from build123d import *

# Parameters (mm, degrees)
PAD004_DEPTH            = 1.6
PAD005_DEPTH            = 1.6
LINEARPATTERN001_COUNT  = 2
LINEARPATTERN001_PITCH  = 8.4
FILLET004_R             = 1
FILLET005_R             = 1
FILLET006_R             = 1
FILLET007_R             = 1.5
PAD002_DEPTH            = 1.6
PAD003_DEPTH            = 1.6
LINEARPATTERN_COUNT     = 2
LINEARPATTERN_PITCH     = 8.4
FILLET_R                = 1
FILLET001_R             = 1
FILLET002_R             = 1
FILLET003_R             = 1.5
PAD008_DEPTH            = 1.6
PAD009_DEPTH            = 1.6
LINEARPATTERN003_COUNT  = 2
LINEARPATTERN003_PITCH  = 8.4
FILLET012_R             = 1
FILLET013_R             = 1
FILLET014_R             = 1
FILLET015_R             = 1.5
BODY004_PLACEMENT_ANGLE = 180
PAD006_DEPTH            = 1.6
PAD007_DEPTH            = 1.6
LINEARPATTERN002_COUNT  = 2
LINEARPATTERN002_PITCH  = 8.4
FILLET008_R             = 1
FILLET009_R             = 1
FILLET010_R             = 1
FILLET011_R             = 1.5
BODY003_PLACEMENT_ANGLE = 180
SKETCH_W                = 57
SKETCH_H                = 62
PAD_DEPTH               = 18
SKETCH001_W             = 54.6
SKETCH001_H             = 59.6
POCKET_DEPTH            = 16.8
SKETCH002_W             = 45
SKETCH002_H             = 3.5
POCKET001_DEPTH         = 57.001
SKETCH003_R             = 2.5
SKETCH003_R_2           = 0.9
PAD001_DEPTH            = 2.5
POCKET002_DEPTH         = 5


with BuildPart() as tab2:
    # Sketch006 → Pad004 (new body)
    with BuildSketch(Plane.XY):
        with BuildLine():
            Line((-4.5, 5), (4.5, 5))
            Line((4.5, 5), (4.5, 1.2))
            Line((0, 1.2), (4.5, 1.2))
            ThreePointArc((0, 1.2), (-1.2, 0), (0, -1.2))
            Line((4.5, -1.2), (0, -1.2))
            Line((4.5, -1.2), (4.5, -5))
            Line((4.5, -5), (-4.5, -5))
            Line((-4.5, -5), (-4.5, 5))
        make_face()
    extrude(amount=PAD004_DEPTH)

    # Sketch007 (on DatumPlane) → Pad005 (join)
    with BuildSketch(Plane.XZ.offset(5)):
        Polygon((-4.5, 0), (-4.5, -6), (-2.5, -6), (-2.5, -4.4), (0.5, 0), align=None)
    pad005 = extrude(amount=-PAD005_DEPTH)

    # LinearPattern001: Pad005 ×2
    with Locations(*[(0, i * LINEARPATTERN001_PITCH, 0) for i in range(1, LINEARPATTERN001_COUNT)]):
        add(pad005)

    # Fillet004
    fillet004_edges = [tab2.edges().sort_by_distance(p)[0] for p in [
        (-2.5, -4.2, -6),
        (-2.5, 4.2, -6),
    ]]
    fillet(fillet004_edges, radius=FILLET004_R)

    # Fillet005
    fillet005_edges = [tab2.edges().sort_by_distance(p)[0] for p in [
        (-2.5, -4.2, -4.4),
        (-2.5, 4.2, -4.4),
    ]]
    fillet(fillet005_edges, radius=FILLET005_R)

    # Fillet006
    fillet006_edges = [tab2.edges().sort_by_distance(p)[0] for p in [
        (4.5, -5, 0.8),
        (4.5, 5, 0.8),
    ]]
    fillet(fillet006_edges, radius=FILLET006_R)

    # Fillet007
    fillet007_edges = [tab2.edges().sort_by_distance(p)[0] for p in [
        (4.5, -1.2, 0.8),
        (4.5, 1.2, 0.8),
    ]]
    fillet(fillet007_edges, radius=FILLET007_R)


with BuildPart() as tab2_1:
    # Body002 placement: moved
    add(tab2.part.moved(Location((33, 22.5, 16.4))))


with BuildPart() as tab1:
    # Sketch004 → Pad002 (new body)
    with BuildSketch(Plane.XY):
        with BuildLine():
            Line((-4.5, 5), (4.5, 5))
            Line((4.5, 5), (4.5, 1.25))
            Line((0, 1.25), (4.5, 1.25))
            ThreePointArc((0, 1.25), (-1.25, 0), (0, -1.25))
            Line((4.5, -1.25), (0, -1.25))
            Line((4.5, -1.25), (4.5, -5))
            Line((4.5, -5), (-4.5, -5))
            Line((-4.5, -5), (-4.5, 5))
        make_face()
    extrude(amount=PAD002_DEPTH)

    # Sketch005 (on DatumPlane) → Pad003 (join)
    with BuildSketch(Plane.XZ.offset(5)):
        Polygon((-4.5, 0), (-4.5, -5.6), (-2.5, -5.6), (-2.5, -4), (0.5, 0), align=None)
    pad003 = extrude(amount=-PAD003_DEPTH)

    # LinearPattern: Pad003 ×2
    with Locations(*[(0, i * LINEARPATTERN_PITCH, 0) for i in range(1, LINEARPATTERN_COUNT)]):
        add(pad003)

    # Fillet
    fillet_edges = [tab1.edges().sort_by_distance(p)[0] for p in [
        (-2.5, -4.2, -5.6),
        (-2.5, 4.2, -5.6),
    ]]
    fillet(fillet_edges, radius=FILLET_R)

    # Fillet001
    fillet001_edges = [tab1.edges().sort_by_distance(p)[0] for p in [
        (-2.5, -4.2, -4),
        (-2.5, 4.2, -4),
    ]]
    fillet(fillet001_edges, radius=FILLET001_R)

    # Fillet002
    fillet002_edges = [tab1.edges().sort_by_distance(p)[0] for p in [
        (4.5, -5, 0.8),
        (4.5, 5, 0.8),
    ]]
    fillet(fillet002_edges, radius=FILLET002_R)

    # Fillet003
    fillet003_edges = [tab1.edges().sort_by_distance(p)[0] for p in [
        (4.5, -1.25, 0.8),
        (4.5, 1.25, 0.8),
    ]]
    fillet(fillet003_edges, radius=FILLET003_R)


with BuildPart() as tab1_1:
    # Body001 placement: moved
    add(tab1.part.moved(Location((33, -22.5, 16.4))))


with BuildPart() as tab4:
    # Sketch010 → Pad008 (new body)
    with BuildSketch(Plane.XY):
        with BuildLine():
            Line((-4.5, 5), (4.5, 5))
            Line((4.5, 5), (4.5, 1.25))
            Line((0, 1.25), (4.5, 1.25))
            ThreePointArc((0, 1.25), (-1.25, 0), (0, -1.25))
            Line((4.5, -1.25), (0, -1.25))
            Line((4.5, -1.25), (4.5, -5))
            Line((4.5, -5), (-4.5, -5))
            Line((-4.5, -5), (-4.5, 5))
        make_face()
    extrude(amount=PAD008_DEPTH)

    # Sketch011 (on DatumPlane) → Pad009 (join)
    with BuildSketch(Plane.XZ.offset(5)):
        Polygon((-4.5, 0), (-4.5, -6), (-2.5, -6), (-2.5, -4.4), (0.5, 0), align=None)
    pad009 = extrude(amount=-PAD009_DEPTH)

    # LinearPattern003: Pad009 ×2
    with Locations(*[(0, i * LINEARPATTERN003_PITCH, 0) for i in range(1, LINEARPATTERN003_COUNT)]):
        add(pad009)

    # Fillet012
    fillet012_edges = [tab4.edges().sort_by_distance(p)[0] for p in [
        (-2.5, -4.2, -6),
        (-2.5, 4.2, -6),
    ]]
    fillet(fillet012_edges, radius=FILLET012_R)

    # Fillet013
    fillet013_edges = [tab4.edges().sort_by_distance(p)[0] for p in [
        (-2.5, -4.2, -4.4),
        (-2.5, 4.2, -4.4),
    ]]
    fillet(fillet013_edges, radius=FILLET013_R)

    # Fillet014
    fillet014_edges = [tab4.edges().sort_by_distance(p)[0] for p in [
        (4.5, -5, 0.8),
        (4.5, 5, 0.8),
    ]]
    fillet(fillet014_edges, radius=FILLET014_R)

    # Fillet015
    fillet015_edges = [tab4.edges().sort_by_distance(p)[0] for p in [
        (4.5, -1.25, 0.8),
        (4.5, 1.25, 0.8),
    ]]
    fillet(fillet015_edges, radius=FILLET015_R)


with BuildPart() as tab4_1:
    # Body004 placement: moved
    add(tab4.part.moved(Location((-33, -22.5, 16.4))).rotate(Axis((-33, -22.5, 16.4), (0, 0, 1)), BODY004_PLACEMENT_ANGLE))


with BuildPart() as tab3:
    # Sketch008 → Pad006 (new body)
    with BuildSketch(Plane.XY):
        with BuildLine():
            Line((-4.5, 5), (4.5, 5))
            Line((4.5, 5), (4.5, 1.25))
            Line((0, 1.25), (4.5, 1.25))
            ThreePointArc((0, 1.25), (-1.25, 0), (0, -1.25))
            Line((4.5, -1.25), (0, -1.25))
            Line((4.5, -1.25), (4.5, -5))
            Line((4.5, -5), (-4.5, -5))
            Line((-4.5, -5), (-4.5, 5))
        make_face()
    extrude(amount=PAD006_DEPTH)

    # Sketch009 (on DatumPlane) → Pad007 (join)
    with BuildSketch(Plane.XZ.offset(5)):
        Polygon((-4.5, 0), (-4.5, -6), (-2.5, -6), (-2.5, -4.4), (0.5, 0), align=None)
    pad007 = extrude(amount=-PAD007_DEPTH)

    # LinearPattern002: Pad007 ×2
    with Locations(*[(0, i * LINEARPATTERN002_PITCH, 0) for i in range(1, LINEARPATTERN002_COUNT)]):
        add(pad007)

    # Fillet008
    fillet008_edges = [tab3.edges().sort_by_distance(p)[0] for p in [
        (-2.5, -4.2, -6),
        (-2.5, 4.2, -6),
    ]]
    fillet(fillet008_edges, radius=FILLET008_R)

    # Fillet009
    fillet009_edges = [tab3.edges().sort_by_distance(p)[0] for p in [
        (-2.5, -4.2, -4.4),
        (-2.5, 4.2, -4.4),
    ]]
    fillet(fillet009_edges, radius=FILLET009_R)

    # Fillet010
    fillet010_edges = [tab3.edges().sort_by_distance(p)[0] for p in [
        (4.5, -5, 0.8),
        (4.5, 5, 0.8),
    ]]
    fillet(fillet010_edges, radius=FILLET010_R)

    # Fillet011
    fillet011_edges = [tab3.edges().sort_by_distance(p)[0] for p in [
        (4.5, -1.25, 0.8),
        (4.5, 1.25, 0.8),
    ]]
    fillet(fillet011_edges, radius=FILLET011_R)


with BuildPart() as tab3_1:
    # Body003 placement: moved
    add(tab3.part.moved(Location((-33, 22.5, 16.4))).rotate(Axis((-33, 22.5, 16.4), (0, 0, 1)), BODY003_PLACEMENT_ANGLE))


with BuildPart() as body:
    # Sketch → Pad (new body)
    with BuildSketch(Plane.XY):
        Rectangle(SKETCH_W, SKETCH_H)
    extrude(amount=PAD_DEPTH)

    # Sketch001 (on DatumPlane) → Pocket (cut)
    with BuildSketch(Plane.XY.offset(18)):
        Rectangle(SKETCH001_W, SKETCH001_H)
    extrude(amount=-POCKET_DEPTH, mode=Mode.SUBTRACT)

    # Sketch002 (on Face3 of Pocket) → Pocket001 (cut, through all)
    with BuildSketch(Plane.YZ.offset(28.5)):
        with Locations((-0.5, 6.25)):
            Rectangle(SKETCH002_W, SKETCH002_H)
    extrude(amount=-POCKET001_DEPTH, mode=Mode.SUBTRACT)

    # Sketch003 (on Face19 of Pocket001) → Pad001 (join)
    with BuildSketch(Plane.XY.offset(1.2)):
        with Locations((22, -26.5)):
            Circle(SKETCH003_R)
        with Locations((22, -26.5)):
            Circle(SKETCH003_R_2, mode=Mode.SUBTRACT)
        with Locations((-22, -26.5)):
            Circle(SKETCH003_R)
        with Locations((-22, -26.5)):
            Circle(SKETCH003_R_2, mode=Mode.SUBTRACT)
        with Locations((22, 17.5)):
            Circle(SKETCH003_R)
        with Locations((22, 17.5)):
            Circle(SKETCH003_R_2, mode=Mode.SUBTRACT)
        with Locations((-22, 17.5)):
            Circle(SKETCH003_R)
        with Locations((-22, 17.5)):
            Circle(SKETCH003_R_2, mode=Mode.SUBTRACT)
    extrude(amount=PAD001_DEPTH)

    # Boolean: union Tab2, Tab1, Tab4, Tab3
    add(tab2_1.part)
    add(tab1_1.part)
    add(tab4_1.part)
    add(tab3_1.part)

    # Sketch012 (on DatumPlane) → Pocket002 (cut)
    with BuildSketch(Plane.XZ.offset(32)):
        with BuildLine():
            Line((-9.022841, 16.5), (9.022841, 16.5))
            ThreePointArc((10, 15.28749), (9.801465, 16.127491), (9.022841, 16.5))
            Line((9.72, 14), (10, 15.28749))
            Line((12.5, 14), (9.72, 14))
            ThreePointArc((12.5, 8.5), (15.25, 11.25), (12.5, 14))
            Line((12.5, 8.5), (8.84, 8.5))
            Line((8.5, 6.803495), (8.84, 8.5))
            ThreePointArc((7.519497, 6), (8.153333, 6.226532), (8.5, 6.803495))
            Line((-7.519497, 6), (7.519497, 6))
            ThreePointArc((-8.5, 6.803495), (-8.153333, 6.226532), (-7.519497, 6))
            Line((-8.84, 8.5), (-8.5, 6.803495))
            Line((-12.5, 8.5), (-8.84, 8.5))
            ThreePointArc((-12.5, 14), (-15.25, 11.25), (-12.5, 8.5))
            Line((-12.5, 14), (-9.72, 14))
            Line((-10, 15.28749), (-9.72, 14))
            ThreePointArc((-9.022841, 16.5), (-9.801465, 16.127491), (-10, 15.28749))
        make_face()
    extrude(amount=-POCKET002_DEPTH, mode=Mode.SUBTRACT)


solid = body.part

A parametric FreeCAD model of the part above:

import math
import FreeCAD as App
import Part
import Sketcher
from FreeCAD import Vector
Q = App.Units.Quantity


def edges_at(feature, points):
    """Names of the edges that pass closest to the given points."""
    edges = feature.Shape.Edges
    near = lambda p: min(range(len(edges)), key=lambda i: edges[i].distToShape(Part.Vertex(*p))[0])
    return sorted({f"Edge{near(p) + 1}" for p in points})

doc = App.newDocument("Part")
params = doc.addObject("Spreadsheet::Sheet", "Params")
for row, (alias, value) in enumerate([
    ("sketch1_radius", "1.2 mm"),
    ("sketch1_width", "9 mm"),
    ("sketch1_height", "10 mm"),
    ("pad1_length", "1.6 mm"),
    ("sketch2_width", "2 mm"),
    ("sketch2_width2", "5 mm"),
    ("sketch2_height", "6 mm"),
    ("sketch2_height2", "1.6 mm"),
    ("pad2_length", "1.6 mm"),
    ("linearpattern_pitch", "8.4 mm"),
    ("fillet_radius", "1 mm"),
    ("fillet2_radius", "1 mm"),
    ("fillet3_radius", "1 mm"),
    ("fillet4_radius", "1.5 mm"),
    ("sketch3_width", "9 mm"),
    ("sketch3_height", "10 mm"),
    ("sketch3_radius", "1.25 mm"),
    ("pad3_length", "1.6 mm"),
    ("sketch4_width", "2 mm"),
    ("sketch4_width2", "5 mm"),
    ("sketch4_length", "5 mm"),
    ("sketch4_height", "5.6 mm"),
    ("pad4_length", "1.6 mm"),
    ("linearpattern2_pitch", "8.4 mm"),
    ("fillet5_radius", "1 mm"),
    ("fillet6_radius", "1 mm"),
    ("fillet7_radius", "1 mm"),
    ("fillet8_radius", "1.5 mm"),
    ("sketch5_width", "9 mm"),
    ("sketch5_height", "10 mm"),
    ("sketch5_radius", "1.25 mm"),
    ("pad5_length", "1.6 mm"),
    ("sketch6_width", "2 mm"),
    ("sketch6_width2", "5 mm"),
    ("sketch6_height", "6 mm"),
    ("sketch6_height2", "1.6 mm"),
    ("pad6_length", "1.6 mm"),
    ("linearpattern3_pitch", "8.4 mm"),
    ("fillet9_radius", "1 mm"),
    ("fillet10_radius", "1 mm"),
    ("fillet11_radius", "1 mm"),
    ("fillet12_radius", "1.5 mm"),
    ("sketch7_width", "9 mm"),
    ("sketch7_height", "10 mm"),
    ("sketch7_radius", "1.25 mm"),
    ("pad7_length", "1.6 mm"),
    ("sketch8_width", "2 mm"),
    ("sketch8_width2", "5 mm"),
    ("sketch8_height", "6 mm"),
    ("sketch8_height2", "1.6 mm"),
    ("pad8_length", "1.6 mm"),
    ("linearpattern4_pitch", "8.4 mm"),
    ("fillet13_radius", "1 mm"),
    ("fillet14_radius", "1 mm"),
    ("fillet15_radius", "1 mm"),
    ("fillet16_radius", "1.5 mm"),
    ("sketch9_width", "57 mm"),
    ("sketch9_height", "62 mm"),
    ("pad9_length", "18 mm"),
    ("sketch10_width", "54.6 mm"),
    ("sketch10_height", "59.6 mm"),
    ("pocket1_length", "16.8 mm"),
    ("sketch11_width", "45 mm"),
    ("sketch11_height", "3.5 mm"),
    ("sketch12_diameter", "5 mm"),
    ("sketch12_diameter2", "1.8 mm"),
    ("pad10_length", "2.5 mm"),
    ("sketch13_radius", "1 mm"),
    ("sketch13_radius2", "2.75 mm"),
    ("sketch13_width", "2.78 mm"),
    ("sketch13_width2", "3.66 mm"),
    ("pocket3_length", "5 mm"),
], start=1):
    params.set(f"A{row}", alias)
    params.set(f"B{row}", "=" + value)
    params.setAlias(f"B{row}", alias)

body = doc.addObject("PartDesign::Body", "Body")

# Sketch on XY plane
sketch1 = doc.addObject("Sketcher::SketchObject", "Sketch")
body.addObject(sketch1)
sketch1.AttachmentSupport = (doc.XY_Plane, [""])
sketch1.MapMode = "FlatFace"
sketch1.addGeometry(Part.LineSegment(Vector(4.5, 5, 0), Vector(-4.5, 5, 0)), False)
sketch1.addGeometry(Part.LineSegment(Vector(-4.5, 5, 0), Vector(-4.5, -5, 0)), False)
sketch1.addGeometry(Part.LineSegment(Vector(-4.5, -5, 0), Vector(4.5, -5, 0)), False)
sketch1.addGeometry(Part.LineSegment(Vector(4.5, -5, 0), Vector(4.5, -1.2, 0)), False)
sketch1.addGeometry(Part.LineSegment(Vector(4.5, -1.2, 0), Vector(0, -1.2, 0)), False)
sketch1.addGeometry(Part.ArcOfCircle(Part.Circle(Vector(0, 0, 0), Vector(0, 0, 1), 1.2), math.radians(90), math.radians(270)), False)
sketch1.addGeometry(Part.LineSegment(Vector(0, 1.2, 0), Vector(4.5, 1.2, 0)), False)
sketch1.addGeometry(Part.LineSegment(Vector(4.5, 1.2, 0), Vector(4.5, 5, 0)), False)
sketch1.addConstraint(Sketcher.Constraint("Coincident", 0, 2, 1, 1))
sketch1.addConstraint(Sketcher.Constraint("Coincident", 1, 2, 2, 1))
sketch1.addConstraint(Sketcher.Constraint("Coincident", 2, 2, 3, 1))
sketch1.addConstraint(Sketcher.Constraint("Coincident", 3, 2, 4, 1))
sketch1.addConstraint(Sketcher.Constraint("Tangent", 4, 2, 5, 2))
sketch1.addConstraint(Sketcher.Constraint("Tangent", 5, 1, 6, 1))
sketch1.addConstraint(Sketcher.Constraint("Coincident", 6, 2, 7, 1))
sketch1.addConstraint(Sketcher.Constraint("Coincident", 7, 2, 0, 1))
sketch1.addConstraint(Sketcher.Constraint("Horizontal", 0))
sketch1.addConstraint(Sketcher.Constraint("Vertical", 1))
sketch1.addConstraint(Sketcher.Constraint("Horizontal", 2))
sketch1.addConstraint(Sketcher.Constraint("Vertical", 3))
sketch1.addConstraint(Sketcher.Constraint("Horizontal", 4))
sketch1.addConstraint(Sketcher.Constraint("Horizontal", 6))
sketch1.addConstraint(Sketcher.Constraint("Vertical", 7))
sketch1.addConstraint(Sketcher.Constraint("Coincident", 5, 3, -1, 1))
sketch1.addConstraint(Sketcher.Constraint("Symmetric", 0, 2, 2, 2, -1, 1))
sketch1.addConstraint(Sketcher.Constraint("Vertical", 3, 2, 6, 2))
sketch1.addConstraint(Sketcher.Constraint("Radius", 5, Q("1.2 mm")))
sketch1.addConstraint(Sketcher.Constraint("DistanceX", 0, 2, 0, 1, Q("9 mm")))
sketch1.addConstraint(Sketcher.Constraint("DistanceY", 1, 2, 1, 1, Q("10 mm")))
sketch1.setExpression("Constraints[18]", "Params.sketch1_radius")
sketch1.setExpression("Constraints[19]", "Params.sketch1_width")
sketch1.setExpression("Constraints[20]", "Params.sketch1_height")
pad1 = doc.addObject("PartDesign::Pad", "Pad")
body.addObject(pad1)
pad1.Profile = sketch1
pad1.setExpression("Length", "Params.pad1_length")

# Sketch on XZ plane
sketch2 = doc.addObject("Sketcher::SketchObject", "Sketch001")
body.addObject(sketch2)
sketch2.AttachmentSupport = (doc.XZ_Plane, [""])
sketch2.MapMode = "FlatFace"
sketch2.AttachmentOffset = App.Placement(Vector(0, 0, 5), App.Rotation())
sketch2.addGeometry(Part.LineSegment(Vector(-4.5, 0, 0), Vector(-4.5, -6, 0)), False)
sketch2.addGeometry(Part.LineSegment(Vector(-4.5, -6, 0), Vector(-2.5, -6, 0)), False)
sketch2.addGeometry(Part.LineSegment(Vector(-2.5, -6, 0), Vector(-2.5, -4.4, 0)), False)
sketch2.addGeometry(Part.LineSegment(Vector(-2.5, -4.4, 0), Vector(0.5, 0, 0)), False)
sketch2.addGeometry(Part.LineSegment(Vector(0.5, 0, 0), Vector(-4.5, 0, 0)), False)
sketch2.addConstraint(Sketcher.Constraint("Coincident", 0, 2, 1, 1))
sketch2.addConstraint(Sketcher.Constraint("Coincident", 1, 2, 2, 1))
sketch2.addConstraint(Sketcher.Constraint("Coincident", 2, 2, 3, 1))
sketch2.addConstraint(Sketcher.Constraint("Coincident", 3, 2, 4, 1))
sketch2.addConstraint(Sketcher.Constraint("Coincident", 4, 2, 0, 1))
sketch2.addConstraint(Sketcher.Constraint("Vertical", 0))
sketch2.addConstraint(Sketcher.Constraint("Horizontal", 1))
sketch2.addConstraint(Sketcher.Constraint("Vertical", 2))
sketch2.addConstraint(Sketcher.Constraint("Horizontal", 4))
sketch2.addConstraint(Sketcher.Constraint("PointOnObject", 3, 2, -1))
sketch2.addConstraint(Sketcher.Constraint("DistanceX", 1, 1, 1, 2, Q("2 mm")))
sketch2.addConstraint(Sketcher.Constraint("DistanceX", 4, 2, 4, 1, Q("5 mm")))
sketch2.addConstraint(Sketcher.Constraint("DistanceY", 0, 2, 0, 1, Q("6 mm")))
sketch2.addConstraint(Sketcher.Constraint("DistanceY", 2, 1, 2, 2, Q("1.6 mm")))
sketch2.addConstraint(Sketcher.Constraint("DistanceX", 0, 2, -1, 1, Q("4.5 mm")))
sketch2.setExpression("Constraints[10]", "Params.sketch2_width")
sketch2.setExpression("Constraints[11]", "Params.sketch2_width2")
sketch2.setExpression("Constraints[12]", "Params.sketch2_height")
sketch2.setExpression("Constraints[13]", "Params.sketch2_height2")
pad2 = doc.addObject("PartDesign::Pad", "Pad001")
body.addObject(pad2)
pad2.Profile = sketch2
pad2.setExpression("Length", "Params.pad2_length")
pad2.Reversed = True
doc.recompute()

linearpattern = doc.addObject("PartDesign::LinearPattern", "LinearPattern")
body.addObject(linearpattern)
linearpattern.Originals = [pad2]
linearpattern.Direction = (doc.Y_Axis, [""])
linearpattern.Mode = "offset"
linearpattern.setExpression("Offset", "Params.linearpattern_pitch")
linearpattern.Occurrences = 2
body.Tip = linearpattern
doc.recompute()

fillet = doc.addObject("PartDesign::Fillet", "Fillet")
body.addObject(fillet)
fillet.Base = (linearpattern, edges_at(linearpattern, [(-2.5, -4.2, -6), (-2.5, 4.2, -6)]))
fillet.setExpression("Radius", "Params.fillet_radius")
doc.recompute()

fillet2 = doc.addObject("PartDesign::Fillet", "Fillet001")
body.addObject(fillet2)
fillet2.Base = (fillet, edges_at(fillet, [(-2.5, -4.2, -4.4), (-2.5, 4.2, -4.4)]))
fillet2.setExpression("Radius", "Params.fillet2_radius")
doc.recompute()

fillet3 = doc.addObject("PartDesign::Fillet", "Fillet002")
body.addObject(fillet3)
fillet3.Base = (fillet2, edges_at(fillet2, [(4.5, -5, 0.8), (4.5, 5, 0.8)]))
fillet3.setExpression("Radius", "Params.fillet3_radius")
doc.recompute()

fillet4 = doc.addObject("PartDesign::Fillet", "Fillet003")
body.addObject(fillet4)
fillet4.Base = (fillet3, edges_at(fillet3, [(4.5, -1.2, 0.8), (4.5, 1.2, 0.8)]))
fillet4.setExpression("Radius", "Params.fillet4_radius")
body2 = doc.addObject("PartDesign::Body", "Body001")
doc.recompute()

body.Placement = App.Placement(Vector(33, 22.5, 16.4), App.Rotation(Vector(0, 0, 1), 0))
boolean = doc.addObject("PartDesign::Boolean", "Boolean")
body2.addObject(boolean)
boolean.Type = "Fuse"
boolean.addObjects([body])
body3 = doc.addObject("PartDesign::Body", "Body002")

# Sketch on XY plane
sketch3 = doc.addObject("Sketcher::SketchObject", "Sketch002")
body3.addObject(sketch3)
sketch3.AttachmentSupport = (doc.getObject("XY_Plane002"), [""])
sketch3.MapMode = "FlatFace"
sketch3.addGeometry(Part.LineSegment(Vector(4.5, 5, 0), Vector(-4.5, 5, 0)), False)
sketch3.addGeometry(Part.LineSegment(Vector(-4.5, 5, 0), Vector(-4.5, -5, 0)), False)
sketch3.addGeometry(Part.LineSegment(Vector(-4.5, -5, 0), Vector(4.5, -5, 0)), False)
sketch3.addGeometry(Part.LineSegment(Vector(4.5, -5, 0), Vector(4.5, -1.2, 0)), False)
sketch3.addGeometry(Part.LineSegment(Vector(4.5, -1.2, 0), Vector(0, -1.2, 0)), False)
sketch3.addGeometry(Part.ArcOfCircle(Part.Circle(Vector(0, 0, 0), Vector(0, 0, 1), 1.2), math.radians(90), math.radians(270)), False)
sketch3.addGeometry(Part.LineSegment(Vector(0, 1.2, 0), Vector(4.5, 1.2, 0)), False)
sketch3.addGeometry(Part.LineSegment(Vector(4.5, 1.2, 0), Vector(4.5, 5, 0)), False)
sketch3.addConstraint(Sketcher.Constraint("Coincident", 0, 2, 1, 1))
sketch3.addConstraint(Sketcher.Constraint("Coincident", 1, 2, 2, 1))
sketch3.addConstraint(Sketcher.Constraint("Coincident", 2, 2, 3, 1))
sketch3.addConstraint(Sketcher.Constraint("Coincident", 3, 2, 4, 1))
sketch3.addConstraint(Sketcher.Constraint("Tangent", 4, 2, 5, 2))
sketch3.addConstraint(Sketcher.Constraint("Tangent", 5, 1, 6, 1))
sketch3.addConstraint(Sketcher.Constraint("Coincident", 6, 2, 7, 1))
sketch3.addConstraint(Sketcher.Constraint("Coincident", 7, 2, 0, 1))
sketch3.addConstraint(Sketcher.Constraint("Horizontal", 0))
sketch3.addConstraint(Sketcher.Constraint("Vertical", 1))
sketch3.addConstraint(Sketcher.Constraint("Horizontal", 2))
sketch3.addConstraint(Sketcher.Constraint("Vertical", 3))
sketch3.addConstraint(Sketcher.Constraint("Horizontal", 4))
sketch3.addConstraint(Sketcher.Constraint("Horizontal", 6))
sketch3.addConstraint(Sketcher.Constraint("Vertical", 7))
sketch3.addConstraint(Sketcher.Constraint("Coincident", 5, 3, -1, 1))
sketch3.addConstraint(Sketcher.Constraint("Symmetric", 0, 2, 2, 2, -1, 1))
sketch3.addConstraint(Sketcher.Constraint("Vertical", 3, 2, 6, 2))
sketch3.addConstraint(Sketcher.Constraint("DistanceX", 0, 2, 0, 1, Q("9 mm")))
sketch3.addConstraint(Sketcher.Constraint("DistanceY", 1, 2, 1, 1, Q("10 mm")))
sketch3.addConstraint(Sketcher.Constraint("Radius", 5, Q("1.25 mm")))
sketch3.setExpression("Constraints[18]", "Params.sketch3_width")
sketch3.setExpression("Constraints[19]", "Params.sketch3_height")
sketch3.setExpression("Constraints[20]", "Params.sketch3_radius")
pad3 = doc.addObject("PartDesign::Pad", "Pad002")
body3.addObject(pad3)
pad3.Profile = sketch3
pad3.setExpression("Length", "Params.pad3_length")

# Sketch on XZ plane
sketch4 = doc.addObject("Sketcher::SketchObject", "Sketch003")
body3.addObject(sketch4)
sketch4.AttachmentSupport = (doc.getObject("XZ_Plane002"), [""])
sketch4.MapMode = "FlatFace"
sketch4.AttachmentOffset = App.Placement(Vector(0, 0, 5), App.Rotation())
sketch4.addGeometry(Part.LineSegment(Vector(-4.5, 0, 0), Vector(-4.5, -5.6, 0)), False)
sketch4.addGeometry(Part.LineSegment(Vector(-4.5, -5.6, 0), Vector(-2.5, -5.6, 0)), False)
sketch4.addGeometry(Part.LineSegment(Vector(-2.5, -5.6, 0), Vector(-2.5, -4, 0)), False)
sketch4.addGeometry(Part.LineSegment(Vector(-2.5, -4, 0), Vector(0.5, 0, 0)), False)
sketch4.addGeometry(Part.LineSegment(Vector(0.5, 0, 0), Vector(-4.5, 0, 0)), False)
sketch4.addConstraint(Sketcher.Constraint("Coincident", 0, 2, 1, 1))
sketch4.addConstraint(Sketcher.Constraint("Coincident", 1, 2, 2, 1))
sketch4.addConstraint(Sketcher.Constraint("Coincident", 2, 2, 3, 1))
sketch4.addConstraint(Sketcher.Constraint("Coincident", 3, 2, 4, 1))
sketch4.addConstraint(Sketcher.Constraint("Coincident", 4, 2, 0, 1))
sketch4.addConstraint(Sketcher.Constraint("Vertical", 0))
sketch4.addConstraint(Sketcher.Constraint("Horizontal", 1))
sketch4.addConstraint(Sketcher.Constraint("Vertical", 2))
sketch4.addConstraint(Sketcher.Constraint("Horizontal", 4))
sketch4.addConstraint(Sketcher.Constraint("PointOnObject", 3, 2, -1))
sketch4.addConstraint(Sketcher.Constraint("DistanceX", 1, 1, 1, 2, Q("2 mm")))
sketch4.addConstraint(Sketcher.Constraint("DistanceX", 4, 2, 4, 1, Q("5 mm")))
sketch4.addConstraint(Sketcher.Constraint("Distance", 3, Q("5 mm")))
sketch4.addConstraint(Sketcher.Constraint("DistanceY", 0, 2, 0, 1, Q("5.6 mm")))
sketch4.addConstraint(Sketcher.Constraint("DistanceX", 0, 2, -1, 1, Q("4.5 mm")))
sketch4.setExpression("Constraints[10]", "Params.sketch4_width")
sketch4.setExpression("Constraints[11]", "Params.sketch4_width2")
sketch4.setExpression("Constraints[12]", "Params.sketch4_length")
sketch4.setExpression("Constraints[13]", "Params.sketch4_height")
pad4 = doc.addObject("PartDesign::Pad", "Pad003")
body3.addObject(pad4)
pad4.Profile = sketch4
pad4.setExpression("Length", "Params.pad4_length")
pad4.Reversed = True
doc.recompute()

linearpattern2 = doc.addObject("PartDesign::LinearPattern", "LinearPattern001")
body3.addObject(linearpattern2)
linearpattern2.Originals = [pad4]
linearpattern2.Direction = (doc.getObject("Y_Axis002"), [""])
linearpattern2.Mode = "offset"
linearpattern2.setExpression("Offset", "Params.linearpattern2_pitch")
linearpattern2.Occurrences = 2
body3.Tip = linearpattern2
doc.recompute()

fillet5 = doc.addObject("PartDesign::Fillet", "Fillet004")
body3.addObject(fillet5)
fillet5.Base = (linearpattern2, edges_at(linearpattern2, [(-2.5, -4.2, -5.6), (-2.5, 4.2, -5.6)]))
fillet5.setExpression("Radius", "Params.fillet5_radius")
doc.recompute()

fillet6 = doc.addObject("PartDesign::Fillet", "Fillet005")
body3.addObject(fillet6)
fillet6.Base = (fillet5, edges_at(fillet5, [(-2.5, -4.2, -4), (-2.5, 4.2, -4)]))
fillet6.setExpression("Radius", "Params.fillet6_radius")
doc.recompute()

fillet7 = doc.addObject("PartDesign::Fillet", "Fillet006")
body3.addObject(fillet7)
fillet7.Base = (fillet6, edges_at(fillet6, [(4.5, -5, 0.8), (4.5, 5, 0.8)]))
fillet7.setExpression("Radius", "Params.fillet7_radius")
doc.recompute()

fillet8 = doc.addObject("PartDesign::Fillet", "Fillet007")
body3.addObject(fillet8)
fillet8.Base = (fillet7, edges_at(fillet7, [(4.5, -1.25, 0.8), (4.5, 1.25, 0.8)]))
fillet8.setExpression("Radius", "Params.fillet8_radius")
body4 = doc.addObject("PartDesign::Body", "Body003")
doc.recompute()

body3.Placement = App.Placement(Vector(33, -22.5, 16.4), App.Rotation(Vector(0, 0, 1), 0))
boolean2 = doc.addObject("PartDesign::Boolean", "Boolean001")
body4.addObject(boolean2)
boolean2.Type = "Fuse"
boolean2.addObjects([body3])
body5 = doc.addObject("PartDesign::Body", "Body004")

# Sketch on XY plane
sketch5 = doc.addObject("Sketcher::SketchObject", "Sketch004")
body5.addObject(sketch5)
sketch5.AttachmentSupport = (doc.getObject("XY_Plane004"), [""])
sketch5.MapMode = "FlatFace"
sketch5.addGeometry(Part.LineSegment(Vector(4.5, 5, 0), Vector(-4.5, 5, 0)), False)
sketch5.addGeometry(Part.LineSegment(Vector(-4.5, 5, 0), Vector(-4.5, -5, 0)), False)
sketch5.addGeometry(Part.LineSegment(Vector(-4.5, -5, 0), Vector(4.5, -5, 0)), False)
sketch5.addGeometry(Part.LineSegment(Vector(4.5, -5, 0), Vector(4.5, -1.2, 0)), False)
sketch5.addGeometry(Part.LineSegment(Vector(4.5, -1.2, 0), Vector(0, -1.2, 0)), False)
sketch5.addGeometry(Part.ArcOfCircle(Part.Circle(Vector(0, 0, 0), Vector(0, 0, 1), 1.2), math.radians(90), math.radians(270)), False)
sketch5.addGeometry(Part.LineSegment(Vector(0, 1.2, 0), Vector(4.5, 1.2, 0)), False)
sketch5.addGeometry(Part.LineSegment(Vector(4.5, 1.2, 0), Vector(4.5, 5, 0)), False)
sketch5.addConstraint(Sketcher.Constraint("Coincident", 0, 2, 1, 1))
sketch5.addConstraint(Sketcher.Constraint("Coincident", 1, 2, 2, 1))
sketch5.addConstraint(Sketcher.Constraint("Coincident", 2, 2, 3, 1))
sketch5.addConstraint(Sketcher.Constraint("Coincident", 3, 2, 4, 1))
sketch5.addConstraint(Sketcher.Constraint("Tangent", 4, 2, 5, 2))
sketch5.addConstraint(Sketcher.Constraint("Tangent", 5, 1, 6, 1))
sketch5.addConstraint(Sketcher.Constraint("Coincident", 6, 2, 7, 1))
sketch5.addConstraint(Sketcher.Constraint("Coincident", 7, 2, 0, 1))
sketch5.addConstraint(Sketcher.Constraint("Horizontal", 0))
sketch5.addConstraint(Sketcher.Constraint("Vertical", 1))
sketch5.addConstraint(Sketcher.Constraint("Horizontal", 2))
sketch5.addConstraint(Sketcher.Constraint("Vertical", 3))
sketch5.addConstraint(Sketcher.Constraint("Horizontal", 4))
sketch5.addConstraint(Sketcher.Constraint("Horizontal", 6))
sketch5.addConstraint(Sketcher.Constraint("Vertical", 7))
sketch5.addConstraint(Sketcher.Constraint("Coincident", 5, 3, -1, 1))
sketch5.addConstraint(Sketcher.Constraint("Symmetric", 0, 2, 2, 2, -1, 1))
sketch5.addConstraint(Sketcher.Constraint("Vertical", 3, 2, 6, 2))
sketch5.addConstraint(Sketcher.Constraint("DistanceX", 0, 2, 0, 1, Q("9 mm")))
sketch5.addConstraint(Sketcher.Constraint("DistanceY", 1, 2, 1, 1, Q("10 mm")))
sketch5.addConstraint(Sketcher.Constraint("Radius", 5, Q("1.25 mm")))
sketch5.setExpression("Constraints[18]", "Params.sketch5_width")
sketch5.setExpression("Constraints[19]", "Params.sketch5_height")
sketch5.setExpression("Constraints[20]", "Params.sketch5_radius")
pad5 = doc.addObject("PartDesign::Pad", "Pad004")
body5.addObject(pad5)
pad5.Profile = sketch5
pad5.setExpression("Length", "Params.pad5_length")

# Sketch on XZ plane
sketch6 = doc.addObject("Sketcher::SketchObject", "Sketch005")
body5.addObject(sketch6)
sketch6.AttachmentSupport = (doc.getObject("XZ_Plane004"), [""])
sketch6.MapMode = "FlatFace"
sketch6.AttachmentOffset = App.Placement(Vector(0, 0, 5), App.Rotation())
sketch6.addGeometry(Part.LineSegment(Vector(-4.5, 0, 0), Vector(-4.5, -6, 0)), False)
sketch6.addGeometry(Part.LineSegment(Vector(-4.5, -6, 0), Vector(-2.5, -6, 0)), False)
sketch6.addGeometry(Part.LineSegment(Vector(-2.5, -6, 0), Vector(-2.5, -4.4, 0)), False)
sketch6.addGeometry(Part.LineSegment(Vector(-2.5, -4.4, 0), Vector(0.5, 0, 0)), False)
sketch6.addGeometry(Part.LineSegment(Vector(0.5, 0, 0), Vector(-4.5, 0, 0)), False)
sketch6.addConstraint(Sketcher.Constraint("Coincident", 0, 2, 1, 1))
sketch6.addConstraint(Sketcher.Constraint("Coincident", 1, 2, 2, 1))
sketch6.addConstraint(Sketcher.Constraint("Coincident", 2, 2, 3, 1))
sketch6.addConstraint(Sketcher.Constraint("Coincident", 3, 2, 4, 1))
sketch6.addConstraint(Sketcher.Constraint("Coincident", 4, 2, 0, 1))
sketch6.addConstraint(Sketcher.Constraint("Vertical", 0))
sketch6.addConstraint(Sketcher.Constraint("Horizontal", 1))
sketch6.addConstraint(Sketcher.Constraint("Vertical", 2))
sketch6.addConstraint(Sketcher.Constraint("Horizontal", 4))
sketch6.addConstraint(Sketcher.Constraint("PointOnObject", 3, 2, -1))
sketch6.addConstraint(Sketcher.Constraint("DistanceX", 1, 1, 1, 2, Q("2 mm")))
sketch6.addConstraint(Sketcher.Constraint("DistanceX", 4, 2, 4, 1, Q("5 mm")))
sketch6.addConstraint(Sketcher.Constraint("DistanceY", 0, 2, 0, 1, Q("6 mm")))
sketch6.addConstraint(Sketcher.Constraint("DistanceY", 2, 1, 2, 2, Q("1.6 mm")))
sketch6.addConstraint(Sketcher.Constraint("DistanceX", 0, 2, -1, 1, Q("4.5 mm")))
sketch6.setExpression("Constraints[10]", "Params.sketch6_width")
sketch6.setExpression("Constraints[11]", "Params.sketch6_width2")
sketch6.setExpression("Constraints[12]", "Params.sketch6_height")
sketch6.setExpression("Constraints[13]", "Params.sketch6_height2")
pad6 = doc.addObject("PartDesign::Pad", "Pad005")
body5.addObject(pad6)
pad6.Profile = sketch6
pad6.setExpression("Length", "Params.pad6_length")
pad6.Reversed = True
doc.recompute()

linearpattern3 = doc.addObject("PartDesign::LinearPattern", "LinearPattern002")
body5.addObject(linearpattern3)
linearpattern3.Originals = [pad6]
linearpattern3.Direction = (doc.getObject("Y_Axis004"), [""])
linearpattern3.Mode = "offset"
linearpattern3.setExpression("Offset", "Params.linearpattern3_pitch")
linearpattern3.Occurrences = 2
body5.Tip = linearpattern3
doc.recompute()

fillet9 = doc.addObject("PartDesign::Fillet", "Fillet008")
body5.addObject(fillet9)
fillet9.Base = (linearpattern3, edges_at(linearpattern3, [(-2.5, -4.2, -6), (-2.5, 4.2, -6)]))
fillet9.setExpression("Radius", "Params.fillet9_radius")
doc.recompute()

fillet10 = doc.addObject("PartDesign::Fillet", "Fillet009")
body5.addObject(fillet10)
fillet10.Base = (fillet9, edges_at(fillet9, [(-2.5, -4.2, -4.4), (-2.5, 4.2, -4.4)]))
fillet10.setExpression("Radius", "Params.fillet10_radius")
doc.recompute()

fillet11 = doc.addObject("PartDesign::Fillet", "Fillet010")
body5.addObject(fillet11)
fillet11.Base = (fillet10, edges_at(fillet10, [(4.5, -5, 0.8), (4.5, 5, 0.8)]))
fillet11.setExpression("Radius", "Params.fillet11_radius")
doc.recompute()

fillet12 = doc.addObject("PartDesign::Fillet", "Fillet011")
body5.addObject(fillet12)
fillet12.Base = (fillet11, edges_at(fillet11, [(4.5, -1.25, 0.8), (4.5, 1.25, 0.8)]))
fillet12.setExpression("Radius", "Params.fillet12_radius")
body6 = doc.addObject("PartDesign::Body", "Body005")
doc.recompute()

body5.Placement = App.Placement(Vector(-33, -22.5, 16.4), App.Rotation(Vector(0, 0, 1), 180))
boolean3 = doc.addObject("PartDesign::Boolean", "Boolean002")
body6.addObject(boolean3)
boolean3.Type = "Fuse"
boolean3.addObjects([body5])
body7 = doc.addObject("PartDesign::Body", "Body006")

# Sketch on XY plane
sketch7 = doc.addObject("Sketcher::SketchObject", "Sketch006")
body7.addObject(sketch7)
sketch7.AttachmentSupport = (doc.getObject("XY_Plane006"), [""])
sketch7.MapMode = "FlatFace"
sketch7.addGeometry(Part.LineSegment(Vector(4.5, 5, 0), Vector(-4.5, 5, 0)), False)
sketch7.addGeometry(Part.LineSegment(Vector(-4.5, 5, 0), Vector(-4.5, -5, 0)), False)
sketch7.addGeometry(Part.LineSegment(Vector(-4.5, -5, 0), Vector(4.5, -5, 0)), False)
sketch7.addGeometry(Part.LineSegment(Vector(4.5, -5, 0), Vector(4.5, -1.2, 0)), False)
sketch7.addGeometry(Part.LineSegment(Vector(4.5, -1.2, 0), Vector(0, -1.2, 0)), False)
sketch7.addGeometry(Part.ArcOfCircle(Part.Circle(Vector(0, 0, 0), Vector(0, 0, 1), 1.2), math.radians(90), math.radians(270)), False)
sketch7.addGeometry(Part.LineSegment(Vector(0, 1.2, 0), Vector(4.5, 1.2, 0)), False)
sketch7.addGeometry(Part.LineSegment(Vector(4.5, 1.2, 0), Vector(4.5, 5, 0)), False)
sketch7.addConstraint(Sketcher.Constraint("Coincident", 0, 2, 1, 1))
sketch7.addConstraint(Sketcher.Constraint("Coincident", 1, 2, 2, 1))
sketch7.addConstraint(Sketcher.Constraint("Coincident", 2, 2, 3, 1))
sketch7.addConstraint(Sketcher.Constraint("Coincident", 3, 2, 4, 1))
sketch7.addConstraint(Sketcher.Constraint("Tangent", 4, 2, 5, 2))
sketch7.addConstraint(Sketcher.Constraint("Tangent", 5, 1, 6, 1))
sketch7.addConstraint(Sketcher.Constraint("Coincident", 6, 2, 7, 1))
sketch7.addConstraint(Sketcher.Constraint("Coincident", 7, 2, 0, 1))
sketch7.addConstraint(Sketcher.Constraint("Horizontal", 0))
sketch7.addConstraint(Sketcher.Constraint("Vertical", 1))
sketch7.addConstraint(Sketcher.Constraint("Horizontal", 2))
sketch7.addConstraint(Sketcher.Constraint("Vertical", 3))
sketch7.addConstraint(Sketcher.Constraint("Horizontal", 4))
sketch7.addConstraint(Sketcher.Constraint("Horizontal", 6))
sketch7.addConstraint(Sketcher.Constraint("Vertical", 7))
sketch7.addConstraint(Sketcher.Constraint("Coincident", 5, 3, -1, 1))
sketch7.addConstraint(Sketcher.Constraint("Symmetric", 0, 2, 2, 2, -1, 1))
sketch7.addConstraint(Sketcher.Constraint("Vertical", 3, 2, 6, 2))
sketch7.addConstraint(Sketcher.Constraint("DistanceX", 0, 2, 0, 1, Q("9 mm")))
sketch7.addConstraint(Sketcher.Constraint("DistanceY", 1, 2, 1, 1, Q("10 mm")))
sketch7.addConstraint(Sketcher.Constraint("Radius", 5, Q("1.25 mm")))
sketch7.setExpression("Constraints[18]", "Params.sketch7_width")
sketch7.setExpression("Constraints[19]", "Params.sketch7_height")
sketch7.setExpression("Constraints[20]", "Params.sketch7_radius")
pad7 = doc.addObject("PartDesign::Pad", "Pad006")
body7.addObject(pad7)
pad7.Profile = sketch7
pad7.setExpression("Length", "Params.pad7_length")

# Sketch on XZ plane
sketch8 = doc.addObject("Sketcher::SketchObject", "Sketch007")
body7.addObject(sketch8)
sketch8.AttachmentSupport = (doc.getObject("XZ_Plane006"), [""])
sketch8.MapMode = "FlatFace"
sketch8.AttachmentOffset = App.Placement(Vector(0, 0, 5), App.Rotation())
sketch8.addGeometry(Part.LineSegment(Vector(-4.5, 0, 0), Vector(-4.5, -6, 0)), False)
sketch8.addGeometry(Part.LineSegment(Vector(-4.5, -6, 0), Vector(-2.5, -6, 0)), False)
sketch8.addGeometry(Part.LineSegment(Vector(-2.5, -6, 0), Vector(-2.5, -4.4, 0)), False)
sketch8.addGeometry(Part.LineSegment(Vector(-2.5, -4.4, 0), Vector(0.5, 0, 0)), False)
sketch8.addGeometry(Part.LineSegment(Vector(0.5, 0, 0), Vector(-4.5, 0, 0)), False)
sketch8.addConstraint(Sketcher.Constraint("Coincident", 0, 2, 1, 1))
sketch8.addConstraint(Sketcher.Constraint("Coincident", 1, 2, 2, 1))
sketch8.addConstraint(Sketcher.Constraint("Coincident", 2, 2, 3, 1))
sketch8.addConstraint(Sketcher.Constraint("Coincident", 3, 2, 4, 1))
sketch8.addConstraint(Sketcher.Constraint("Coincident", 4, 2, 0, 1))
sketch8.addConstraint(Sketcher.Constraint("Vertical", 0))
sketch8.addConstraint(Sketcher.Constraint("Horizontal", 1))
sketch8.addConstraint(Sketcher.Constraint("Vertical", 2))
sketch8.addConstraint(Sketcher.Constraint("Horizontal", 4))
sketch8.addConstraint(Sketcher.Constraint("PointOnObject", 3, 2, -1))
sketch8.addConstraint(Sketcher.Constraint("DistanceX", 1, 1, 1, 2, Q("2 mm")))
sketch8.addConstraint(Sketcher.Constraint("DistanceX", 4, 2, 4, 1, Q("5 mm")))
sketch8.addConstraint(Sketcher.Constraint("DistanceY", 0, 2, 0, 1, Q("6 mm")))
sketch8.addConstraint(Sketcher.Constraint("DistanceY", 2, 1, 2, 2, Q("1.6 mm")))
sketch8.addConstraint(Sketcher.Constraint("DistanceX", 0, 2, -1, 1, Q("4.5 mm")))
sketch8.setExpression("Constraints[10]", "Params.sketch8_width")
sketch8.setExpression("Constraints[11]", "Params.sketch8_width2")
sketch8.setExpression("Constraints[12]", "Params.sketch8_height")
sketch8.setExpression("Constraints[13]", "Params.sketch8_height2")
pad8 = doc.addObject("PartDesign::Pad", "Pad007")
body7.addObject(pad8)
pad8.Profile = sketch8
pad8.setExpression("Length", "Params.pad8_length")
pad8.Reversed = True
doc.recompute()

linearpattern4 = doc.addObject("PartDesign::LinearPattern", "LinearPattern003")
body7.addObject(linearpattern4)
linearpattern4.Originals = [pad8]
linearpattern4.Direction = (doc.getObject("Y_Axis006"), [""])
linearpattern4.Mode = "offset"
linearpattern4.setExpression("Offset", "Params.linearpattern4_pitch")
linearpattern4.Occurrences = 2
body7.Tip = linearpattern4
doc.recompute()

fillet13 = doc.addObject("PartDesign::Fillet", "Fillet012")
body7.addObject(fillet13)
fillet13.Base = (linearpattern4, edges_at(linearpattern4, [(-2.5, -4.2, -6), (-2.5, 4.2, -6)]))
fillet13.setExpression("Radius", "Params.fillet13_radius")
doc.recompute()

fillet14 = doc.addObject("PartDesign::Fillet", "Fillet013")
body7.addObject(fillet14)
fillet14.Base = (fillet13, edges_at(fillet13, [(-2.5, -4.2, -4.4), (-2.5, 4.2, -4.4)]))
fillet14.setExpression("Radius", "Params.fillet14_radius")
doc.recompute()

fillet15 = doc.addObject("PartDesign::Fillet", "Fillet014")
body7.addObject(fillet15)
fillet15.Base = (fillet14, edges_at(fillet14, [(4.5, -5, 0.8), (4.5, 5, 0.8)]))
fillet15.setExpression("Radius", "Params.fillet15_radius")
doc.recompute()

fillet16 = doc.addObject("PartDesign::Fillet", "Fillet015")
body7.addObject(fillet16)
fillet16.Base = (fillet15, edges_at(fillet15, [(4.5, -1.25, 0.8), (4.5, 1.25, 0.8)]))
fillet16.setExpression("Radius", "Params.fillet16_radius")
body8 = doc.addObject("PartDesign::Body", "Body007")
doc.recompute()

body7.Placement = App.Placement(Vector(-33, 22.5, 16.4), App.Rotation(Vector(0, 0, 1), 180))
boolean4 = doc.addObject("PartDesign::Boolean", "Boolean003")
body8.addObject(boolean4)
boolean4.Type = "Fuse"
boolean4.addObjects([body7])
body9 = doc.addObject("PartDesign::Body", "Body008")

# Sketch on XY plane
sketch9 = doc.addObject("Sketcher::SketchObject", "Sketch008")
body9.addObject(sketch9)
sketch9.AttachmentSupport = (doc.getObject("XY_Plane008"), [""])
sketch9.MapMode = "FlatFace"
sketch9.addGeometry(Part.LineSegment(Vector(-28, 31, 0), Vector(-28, -31, 0)), False)
sketch9.addGeometry(Part.LineSegment(Vector(-28, -31, 0), Vector(28, -31, 0)), False)
sketch9.addGeometry(Part.LineSegment(Vector(28, -31, 0), Vector(28, 31, 0)), False)
sketch9.addGeometry(Part.LineSegment(Vector(28, 31, 0), Vector(-28, 31, 0)), False)
sketch9.addConstraint(Sketcher.Constraint("Coincident", 0, 2, 1, 1))
sketch9.addConstraint(Sketcher.Constraint("Coincident", 1, 2, 2, 1))
sketch9.addConstraint(Sketcher.Constraint("Coincident", 2, 2, 3, 1))
sketch9.addConstraint(Sketcher.Constraint("Coincident", 3, 2, 0, 1))
sketch9.addConstraint(Sketcher.Constraint("Vertical", 0))
sketch9.addConstraint(Sketcher.Constraint("Horizontal", 1))
sketch9.addConstraint(Sketcher.Constraint("Vertical", 2))
sketch9.addConstraint(Sketcher.Constraint("Horizontal", 3))
sketch9.addConstraint(Sketcher.Constraint("Symmetric", 0, 2, 2, 2, -1, 1))
sketch9.addConstraint(Sketcher.Constraint("DistanceX", 1, 1, 1, 2, Q("57 mm")))
sketch9.addConstraint(Sketcher.Constraint("DistanceY", 0, 2, 0, 1, Q("62 mm")))
sketch9.setExpression("Constraints[9]", "Params.sketch9_width")
sketch9.setExpression("Constraints[10]", "Params.sketch9_height")
pad9 = doc.addObject("PartDesign::Pad", "Pad008")
body9.addObject(pad9)
pad9.Profile = sketch9
pad9.setExpression("Length", "Params.pad9_length")

# Sketch on XY plane
sketch10 = doc.addObject("Sketcher::SketchObject", "Sketch009")
body9.addObject(sketch10)
sketch10.AttachmentSupport = (doc.getObject("XY_Plane008"), [""])
sketch10.MapMode = "FlatFace"
sketch10.AttachmentOffset = App.Placement(Vector(0, 0, 18), App.Rotation())
sketch10.addGeometry(Part.LineSegment(Vector(-27, 30, 0), Vector(-27, -30, 0)), False)
sketch10.addGeometry(Part.LineSegment(Vector(-27, -30, 0), Vector(27, -30, 0)), False)
sketch10.addGeometry(Part.LineSegment(Vector(27, -30, 0), Vector(27, 30, 0)), False)
sketch10.addGeometry(Part.LineSegment(Vector(27, 30, 0), Vector(-27, 30, 0)), False)
sketch10.addConstraint(Sketcher.Constraint("Coincident", 0, 2, 1, 1))
sketch10.addConstraint(Sketcher.Constraint("Coincident", 1, 2, 2, 1))
sketch10.addConstraint(Sketcher.Constraint("Coincident", 2, 2, 3, 1))
sketch10.addConstraint(Sketcher.Constraint("Coincident", 3, 2, 0, 1))
sketch10.addConstraint(Sketcher.Constraint("Vertical", 0))
sketch10.addConstraint(Sketcher.Constraint("Horizontal", 1))
sketch10.addConstraint(Sketcher.Constraint("Vertical", 2))
sketch10.addConstraint(Sketcher.Constraint("Horizontal", 3))
sketch10.addConstraint(Sketcher.Constraint("Symmetric", 0, 2, 2, 2, -1, 1))
sketch10.addConstraint(Sketcher.Constraint("DistanceX", 1, 1, 1, 2, Q("54.6 mm")))
sketch10.addConstraint(Sketcher.Constraint("DistanceY", 0, 2, 0, 1, Q("59.6 mm")))
sketch10.setExpression("Constraints[9]", "Params.sketch10_width")
sketch10.setExpression("Constraints[10]", "Params.sketch10_height")
pocket1 = doc.addObject("PartDesign::Pocket", "Pocket")
body9.addObject(pocket1)
pocket1.Profile = sketch10
pocket1.setExpression("Length", "Params.pocket1_length")

# Sketch on YZ plane
sketch11 = doc.addObject("Sketcher::SketchObject", "Sketch010")
body9.addObject(sketch11)
sketch11.AttachmentSupport = (doc.getObject("YZ_Plane008"), [""])
sketch11.MapMode = "FlatFace"
sketch11.AttachmentOffset = App.Placement(Vector(0, 0, 28.5), App.Rotation())
sketch11.addGeometry(Part.LineSegment(Vector(-23, 8, 0), Vector(-23, 4.5, 0)), False)
sketch11.addGeometry(Part.LineSegment(Vector(-23, 4.5, 0), Vector(22, 4.5, 0)), False)
sketch11.addGeometry(Part.LineSegment(Vector(22, 4.5, 0), Vector(22, 8, 0)), False)
sketch11.addGeometry(Part.LineSegment(Vector(22, 8, 0), Vector(-23, 8, 0)), False)
sketch11.addConstraint(Sketcher.Constraint("Coincident", 0, 2, 1, 1))
sketch11.addConstraint(Sketcher.Constraint("Coincident", 1, 2, 2, 1))
sketch11.addConstraint(Sketcher.Constraint("Coincident", 2, 2, 3, 1))
sketch11.addConstraint(Sketcher.Constraint("Coincident", 3, 2, 0, 1))
sketch11.addConstraint(Sketcher.Constraint("Vertical", 0))
sketch11.addConstraint(Sketcher.Constraint("Horizontal", 1))
sketch11.addConstraint(Sketcher.Constraint("Vertical", 2))
sketch11.addConstraint(Sketcher.Constraint("Horizontal", 3))
sketch11.addConstraint(Sketcher.Constraint("DistanceX", 1, 1, 1, 2, Q("45 mm")))
sketch11.addConstraint(Sketcher.Constraint("DistanceY", 0, 2, 0, 1, Q("3.5 mm")))
sketch11.addConstraint(Sketcher.Constraint("DistanceX", 0, 2, -1, 1, Q("23 mm")))
sketch11.addConstraint(Sketcher.Constraint("DistanceY", -1, 1, 2, 2, Q("8 mm")))
sketch11.setExpression("Constraints[8]", "Params.sketch11_width")
sketch11.setExpression("Constraints[9]", "Params.sketch11_height")
pocket2 = doc.addObject("PartDesign::Pocket", "Pocket001")
body9.addObject(pocket2)
pocket2.Profile = sketch11
pocket2.Type = "ThroughAll"

# Sketch on XY plane
sketch12 = doc.addObject("Sketcher::SketchObject", "Sketch011")
body9.addObject(sketch12)
sketch12.AttachmentSupport = (doc.getObject("XY_Plane008"), [""])
sketch12.MapMode = "FlatFace"
sketch12.AttachmentOffset = App.Placement(Vector(0, 0, 1.2), App.Rotation())
sketch12.addGeometry(Part.Circle(Vector(22, -26.5, 0), Vector(0, 0, 1), 2.5), False)
sketch12.addGeometry(Part.Circle(Vector(22, -26.5, 0), Vector(0, 0, 1), 0.9), False)
sketch12.addGeometry(Part.Circle(Vector(-22, -26.5, 0), Vector(0, 0, 1), 2.5), False)
sketch12.addGeometry(Part.Circle(Vector(-22, -26.5, 0), Vector(0, 0, 1), 0.9), False)
sketch12.addGeometry(Part.Circle(Vector(22, 17.5, 0), Vector(0, 0, 1), 2.5), False)
sketch12.addGeometry(Part.Circle(Vector(22, 17.5, 0), Vector(0, 0, 1), 0.9), False)
sketch12.addGeometry(Part.Circle(Vector(-22, 17.5, 0), Vector(0, 0, 1), 2.5), False)
sketch12.addGeometry(Part.Circle(Vector(-22, 17.5, 0), Vector(0, 0, 1), 0.9), False)
sketch12.addConstraint(Sketcher.Constraint("Coincident", 1, 3, 0, 3))
sketch12.addConstraint(Sketcher.Constraint("Coincident", 3, 3, 2, 3))
sketch12.addConstraint(Sketcher.Constraint("Coincident", 5, 3, 4, 3))
sketch12.addConstraint(Sketcher.Constraint("Coincident", 7, 3, 6, 3))
sketch12.addConstraint(Sketcher.Constraint("Equal", 0, 2))
sketch12.addConstraint(Sketcher.Constraint("Equal", 1, 3))
sketch12.addConstraint(Sketcher.Constraint("Equal", 2, 4))
sketch12.addConstraint(Sketcher.Constraint("Equal", 3, 5))
sketch12.addConstraint(Sketcher.Constraint("Equal", 4, 6))
sketch12.addConstraint(Sketcher.Constraint("Equal", 5, 7))
sketch12.addConstraint(Sketcher.Constraint("Symmetric", 0, 3, 2, 3, -2))
sketch12.addConstraint(Sketcher.Constraint("Symmetric", 4, 3, 6, 3, -2))
sketch12.addConstraint(Sketcher.Constraint("Vertical", 1, 3, 4, 3))
sketch12.addConstraint(Sketcher.Constraint("Diameter", 0, Q("5 mm")))
sketch12.addConstraint(Sketcher.Constraint("Diameter", 1, Q("1.8 mm")))
sketch12.addConstraint(Sketcher.Constraint("DistanceX", -1, 1, 0, 3, Q("22 mm")))
sketch12.addConstraint(Sketcher.Constraint("DistanceY", 0, 3, 4, 3, Q("44 mm")))
sketch12.addConstraint(Sketcher.Constraint("DistanceY", 0, 3, -1, 1, Q("26.5 mm")))
sketch12.setExpression("Constraints[13]", "Params.sketch12_diameter")
sketch12.setExpression("Constraints[14]", "Params.sketch12_diameter2")
pad10 = doc.addObject("PartDesign::Pad", "Pad009")
body9.addObject(pad10)
pad10.Profile = sketch12
pad10.setExpression("Length", "Params.pad10_length")
doc.recompute()

boolean5 = doc.addObject("PartDesign::Boolean", "Boolean004")
body9.addObject(boolean5)
boolean5.Type = "Fuse"
boolean5.addObjects([body2])
doc.recompute()

boolean6 = doc.addObject("PartDesign::Boolean", "Boolean005")
body9.addObject(boolean6)
boolean6.Type = "Fuse"
boolean6.addObjects([body4])
doc.recompute()

boolean7 = doc.addObject("PartDesign::Boolean", "Boolean006")
body9.addObject(boolean7)
boolean7.Type = "Fuse"
boolean7.addObjects([body6])
doc.recompute()

boolean8 = doc.addObject("PartDesign::Boolean", "Boolean007")
body9.addObject(boolean8)
boolean8.Type = "Fuse"
boolean8.addObjects([body8])

# Sketch on XZ plane
sketch13 = doc.addObject("Sketcher::SketchObject", "Sketch012")
body9.addObject(sketch13)
sketch13.AttachmentSupport = (doc.getObject("XZ_Plane008"), [""])
sketch13.MapMode = "FlatFace"
sketch13.AttachmentOffset = App.Placement(Vector(0, 0, 32), App.Rotation())
sketch13.addGeometry(Part.LineSegment(Vector(9, 16.5, 0), Vector(-9, 16.5, 0)), False)
sketch13.addGeometry(Part.ArcOfCircle(Part.Circle(Vector(-9, 15.5, 0), Vector(0, 0, 1), 1), math.radians(90), math.radians(192)), False)
sketch13.addGeometry(Part.LineSegment(Vector(-10, 15.3, 0), Vector(-9.7, 14, 0)), False)
sketch13.addGeometry(Part.LineSegment(Vector(-9.7, 14, 0), Vector(-12.5, 14, 0)), False)
sketch13.addGeometry(Part.ArcOfCircle(Part.Circle(Vector(-12.5, 11.2, 0), Vector(0, 0, 1), 2.8), math.radians(90), math.radians(270)), False)
sketch13.addGeometry(Part.LineSegment(Vector(-12.5, 8.5, 0), Vector(-8.8, 8.5, 0)), False)
sketch13.addGeometry(Part.LineSegment(Vector(-8.8, 8.5, 0), Vector(-8.5, 6.8, 0)), False)
sketch13.addGeometry(Part.ArcOfCircle(Part.Circle(Vector(-7.5, 7, 0), Vector(0, 0, 1), 1), math.radians(-169), math.radians(-90)), False)
sketch13.addGeometry(Part.LineSegment(Vector(-7.5, 6, 0), Vector(7.5, 6, 0)), False)
sketch13.addGeometry(Part.ArcOfCircle(Part.Circle(Vector(7.5, 7, 0), Vector(0, 0, 1), 1), math.radians(-90), math.radians(-11)), False)
sketch13.addGeometry(Part.LineSegment(Vector(8.5, 6.8, 0), Vector(8.8, 8.5, 0)), False)
sketch13.addGeometry(Part.LineSegment(Vector(8.8, 8.5, 0), Vector(12.5, 8.5, 0)), False)
sketch13.addGeometry(Part.ArcOfCircle(Part.Circle(Vector(12.5, 11.2, 0), Vector(0, 0, 1), 2.8), math.radians(-90), math.radians(90)), False)
sketch13.addGeometry(Part.LineSegment(Vector(12.5, 14, 0), Vector(9.7, 14, 0)), False)
sketch13.addGeometry(Part.LineSegment(Vector(9.7, 14, 0), Vector(10, 15.3, 0)), False)
sketch13.addGeometry(Part.ArcOfCircle(Part.Circle(Vector(9, 15.5, 0), Vector(0, 0, 1), 1), math.radians(-12), math.radians(90)), False)
sketch13.addConstraint(Sketcher.Constraint("Tangent", 0, 2, 1, 1))
sketch13.addConstraint(Sketcher.Constraint("Tangent", 1, 2, 2, 1))
sketch13.addConstraint(Sketcher.Constraint("Coincident", 2, 2, 3, 1))
sketch13.addConstraint(Sketcher.Constraint("Tangent", 3, 2, 4, 1))
sketch13.addConstraint(Sketcher.Constraint("Tangent", 4, 2, 5, 1))
sketch13.addConstraint(Sketcher.Constraint("Coincident", 5, 2, 6, 1))
sketch13.addConstraint(Sketcher.Constraint("Tangent", 6, 2, 7, 1))
sketch13.addConstraint(Sketcher.Constraint("Tangent", 7, 2, 8, 1))
sketch13.addConstraint(Sketcher.Constraint("Tangent", 8, 2, 9, 1))
sketch13.addConstraint(Sketcher.Constraint("Tangent", 9, 2, 10, 1))
sketch13.addConstraint(Sketcher.Constraint("Coincident", 10, 2, 11, 1))
sketch13.addConstraint(Sketcher.Constraint("Tangent", 11, 2, 12, 1))
sketch13.addConstraint(Sketcher.Constraint("Tangent", 12, 2, 13, 1))
sketch13.addConstraint(Sketcher.Constraint("Coincident", 13, 2, 14, 1))
sketch13.addConstraint(Sketcher.Constraint("Tangent", 14, 2, 15, 1))
sketch13.addConstraint(Sketcher.Constraint("Tangent", 15, 2, 0, 1))
sketch13.addConstraint(Sketcher.Constraint("Horizontal", 0))
sketch13.addConstraint(Sketcher.Constraint("Horizontal", 3))
sketch13.addConstraint(Sketcher.Constraint("Horizontal", 5))
sketch13.addConstraint(Sketcher.Constraint("Horizontal", 8))
sketch13.addConstraint(Sketcher.Constraint("Horizontal", 11))
sketch13.addConstraint(Sketcher.Constraint("Horizontal", 13))
sketch13.addConstraint(Sketcher.Constraint("Equal", 1, 7))
sketch13.addConstraint(Sketcher.Constraint("Equal", 7, 9))
sketch13.addConstraint(Sketcher.Constraint("Equal", 4, 12))
sketch13.addConstraint(Sketcher.Constraint("Equal", 9, 15))
sketch13.addConstraint(Sketcher.Constraint("Symmetric", 4, 3, 12, 3, -2))
sketch13.addConstraint(Sketcher.Constraint("Symmetric", 6, 2, 9, 2, -2))
sketch13.addConstraint(Sketcher.Constraint("Symmetric", 1, 2, 14, 2, -2))
sketch13.addConstraint(Sketcher.Constraint("Radius", 1, Q("1 mm")))
sketch13.addConstraint(Sketcher.Constraint("Radius", 4, Q("2.75 mm")))
sketch13.addConstraint(Sketcher.Constraint("DistanceY", -1, 1, 7, 3, Q("6.999999 mm")))
sketch13.addConstraint(Sketcher.Constraint("DistanceX", 1, 2, -1, 1, Q("10 mm")))
sketch13.addConstraint(Sketcher.Constraint("DistanceY", -1, 1, 2, 2, Q("14 mm")))
sketch13.addConstraint(Sketcher.Constraint("DistanceX", 4, 3, 12, 3, Q("25 mm")))
sketch13.addConstraint(Sketcher.Constraint("DistanceX", 4, 2, 6, 2, Q("4 mm")))
sketch13.addConstraint(Sketcher.Constraint("DistanceY", 10, 2, 15, 3, Q("7 mm")))
sketch13.addConstraint(Sketcher.Constraint("DistanceX", 3, 2, 3, 1, Q("2.78 mm")))
sketch13.addConstraint(Sketcher.Constraint("DistanceX", 5, 1, 5, 2, Q("3.66 mm")))
sketch13.setExpression("Constraints[29]", "Params.sketch13_radius")
sketch13.setExpression("Constraints[30]", "Params.sketch13_radius2")
sketch13.setExpression("Constraints[37]", "Params.sketch13_width")
sketch13.setExpression("Constraints[38]", "Params.sketch13_width2")
pocket3 = doc.addObject("PartDesign::Pocket", "Pocket002")
body9.addObject(pocket3)
pocket3.Profile = sketch13
pocket3.setExpression("Length", "Params.pocket3_length")

doc.recompute()
